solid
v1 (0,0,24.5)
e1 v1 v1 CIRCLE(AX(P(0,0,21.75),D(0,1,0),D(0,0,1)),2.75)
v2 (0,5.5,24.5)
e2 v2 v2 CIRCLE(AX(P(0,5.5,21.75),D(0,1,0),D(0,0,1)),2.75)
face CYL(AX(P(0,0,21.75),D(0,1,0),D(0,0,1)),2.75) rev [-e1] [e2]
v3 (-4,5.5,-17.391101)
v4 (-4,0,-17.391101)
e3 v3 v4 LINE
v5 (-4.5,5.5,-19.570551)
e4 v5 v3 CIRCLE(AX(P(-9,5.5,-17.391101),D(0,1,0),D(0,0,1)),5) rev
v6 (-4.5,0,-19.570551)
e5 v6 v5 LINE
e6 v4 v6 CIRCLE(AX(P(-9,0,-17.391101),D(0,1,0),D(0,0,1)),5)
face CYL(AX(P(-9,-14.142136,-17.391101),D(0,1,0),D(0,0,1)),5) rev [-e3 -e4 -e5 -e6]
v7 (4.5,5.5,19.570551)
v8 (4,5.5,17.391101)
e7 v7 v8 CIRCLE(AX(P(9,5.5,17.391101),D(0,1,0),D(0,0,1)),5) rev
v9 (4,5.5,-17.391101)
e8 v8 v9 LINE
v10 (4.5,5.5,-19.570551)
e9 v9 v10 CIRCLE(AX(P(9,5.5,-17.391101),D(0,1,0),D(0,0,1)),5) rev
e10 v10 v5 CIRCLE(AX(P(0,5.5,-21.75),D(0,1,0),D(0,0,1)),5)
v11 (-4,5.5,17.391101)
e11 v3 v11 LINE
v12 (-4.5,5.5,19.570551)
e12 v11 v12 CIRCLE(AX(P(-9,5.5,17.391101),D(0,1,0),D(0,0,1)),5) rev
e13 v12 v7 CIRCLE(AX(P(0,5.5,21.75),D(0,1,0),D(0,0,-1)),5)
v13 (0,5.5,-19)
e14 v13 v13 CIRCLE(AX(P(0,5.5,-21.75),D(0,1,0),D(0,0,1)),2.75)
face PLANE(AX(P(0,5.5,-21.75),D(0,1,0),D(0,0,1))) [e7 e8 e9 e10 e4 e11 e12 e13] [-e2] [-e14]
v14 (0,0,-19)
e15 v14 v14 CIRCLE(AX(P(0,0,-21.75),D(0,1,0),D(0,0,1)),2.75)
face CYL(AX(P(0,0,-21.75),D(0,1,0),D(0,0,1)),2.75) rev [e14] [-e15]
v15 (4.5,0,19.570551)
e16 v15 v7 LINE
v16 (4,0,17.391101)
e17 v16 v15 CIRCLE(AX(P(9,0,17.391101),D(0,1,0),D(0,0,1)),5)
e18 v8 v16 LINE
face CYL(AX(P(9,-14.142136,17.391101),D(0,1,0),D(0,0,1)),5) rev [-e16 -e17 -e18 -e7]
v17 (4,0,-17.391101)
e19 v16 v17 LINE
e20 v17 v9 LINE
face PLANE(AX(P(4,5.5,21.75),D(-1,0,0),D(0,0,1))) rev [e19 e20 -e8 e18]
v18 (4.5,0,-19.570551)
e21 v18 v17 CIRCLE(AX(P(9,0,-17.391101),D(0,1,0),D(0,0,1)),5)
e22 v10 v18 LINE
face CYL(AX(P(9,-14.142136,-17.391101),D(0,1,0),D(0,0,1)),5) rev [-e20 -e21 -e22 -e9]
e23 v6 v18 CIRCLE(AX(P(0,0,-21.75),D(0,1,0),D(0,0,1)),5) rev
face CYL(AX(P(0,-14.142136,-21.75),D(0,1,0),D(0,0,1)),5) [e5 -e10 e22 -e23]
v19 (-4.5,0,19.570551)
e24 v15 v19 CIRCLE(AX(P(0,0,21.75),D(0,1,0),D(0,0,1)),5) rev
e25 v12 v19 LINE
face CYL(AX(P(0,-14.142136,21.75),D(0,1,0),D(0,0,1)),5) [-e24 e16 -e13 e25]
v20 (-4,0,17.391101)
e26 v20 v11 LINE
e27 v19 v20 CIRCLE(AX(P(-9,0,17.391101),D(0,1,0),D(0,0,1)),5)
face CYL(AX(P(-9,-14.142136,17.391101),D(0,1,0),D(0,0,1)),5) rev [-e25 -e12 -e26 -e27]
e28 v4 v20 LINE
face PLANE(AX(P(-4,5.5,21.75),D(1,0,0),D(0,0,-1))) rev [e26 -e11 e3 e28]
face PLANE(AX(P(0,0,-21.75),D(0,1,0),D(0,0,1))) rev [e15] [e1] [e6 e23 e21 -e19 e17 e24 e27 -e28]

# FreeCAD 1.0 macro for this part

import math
import FreeCAD as App
import Part
import Sketcher
from FreeCAD import Vector
Q = App.Units.Quantity


def edges_at(feature, points):
    """Names of the edges that pass closest to the given points."""
    edges = feature.Shape.Edges
    near = lambda p: min(range(len(edges)), key=lambda i: edges[i].distToShape(Part.Vertex(*p))[0])
    return sorted({f"Edge{near(p) + 1}" for p in points})

doc = App.newDocument("Part")
body = doc.addObject("PartDesign::Body", "Body")

sketch1 = body.newObject("Sketcher::SketchObject", "Sketch")
sketch1.AttachmentSupport = (doc.getObject("XZ_Plane"), [""])
sketch1.MapMode = "FlatFace"
sketch1.addGeometry([
    Part.LineSegment(Vector(-4, -21.8, 0), Vector(-4, 21.8, 0)),
    Part.ArcOfCircle(Part.Circle(Vector(0, 21.8, 0), Vector(0, 0, 1), 4), math.radians(0), math.radians(180)),
    Part.LineSegment(Vector(4, 21.8, 0), Vector(4, -21.8, 0)),
    Part.ArcOfCircle(Part.Circle(Vector(0, -21.8, 0), Vector(0, 0, 1), 4), math.radians(180), math.radians(360)),
], False)
sketch1.addConstraint([
    Sketcher.Constraint("Tangent", 0, 2, 1, 2),
    Sketcher.Constraint("Tangent", 1, 1, 2, 1),
    Sketcher.Constraint("Tangent", 2, 2, 3, 2),
    Sketcher.Constraint("Tangent", 3, 1, 0, 1),
    Sketcher.Constraint("Vertical", 0),
    Sketcher.Constraint("Vertical", 2),
    Sketcher.Constraint("Symmetric", 1, 3, 3, 3, -1, 1),
    Sketcher.Constraint("Radius", 1, Q("4 mm")),
    Sketcher.Constraint("DistanceY", 0, 1, 0, 2, Q("43.5 mm")),
])
pad1 = body.newObject("PartDesign::Pad", "Pad")
pad1.Profile = sketch1
pad1.Length = 5.5
pad1.Reversed = True

sketch2 = body.newObject("Sketcher::SketchObject", "Sketch001")
sketch2.AttachmentSupport = (doc.getObject("XZ_Plane"), [""])
sketch2.MapMode = "FlatFace"
sketch2.AttachmentOffset = App.Placement(Vector(0, 0, -5.5), App.Rotation())
sketch2.addGeometry([
    Part.Circle(Vector(0, -21.8, 0), Vector(0, 0, 1), 2.8),
    Part.Circle(Vector(0, 21.8, 0), Vector(0, 0, 1), 2.8),
], False)
sketch2.addConstraint([
    Sketcher.Constraint("Equal", 0, 1),
    Sketcher.Constraint("Symmetric", 0, 3, 1, 3, -1, 1),
    Sketcher.Constraint("PointOnObject", 0, 3, -2),
    Sketcher.Constraint("Diameter", 0, Q("5.5 mm")),
    Sketcher.Constraint("DistanceY", 0, 3, 1, 3, Q("43.5 mm")),
])
pocket1 = body.newObject("PartDesign::Pocket", "Pocket")
pocket1.Profile = sketch2
pocket1.Type = "ThroughAll"
pocket1.Reversed = True

sketch3 = body.newObject("Sketcher::SketchObject", "Sketch002")
sketch3.AttachmentSupport = (doc.getObject("XZ_Plane"), [""])
sketch3.MapMode = "FlatFace"
sketch3.AttachmentOffset = App.Placement(Vector(0, 0, -5.5), App.Rotation())
sketch3.addGeometry([
    Part.Circle(Vector(0, -21.8, 0), Vector(0, 0, 1), 5),
    Part.Circle(Vector(0, -21.8, 0), Vector(0, 0, 1), 2.8),
    Part.Circle(Vector(0, 21.8, 0), Vector(0, 0, 1), 5),
    Part.Circle(Vector(0, 21.8, 0), Vector(0, 0, 1), 2.8),
], False)
sketch3.addConstraint([
    Sketcher.Constraint("Coincident", 1, 3, 0, 3),
    Sketcher.Constraint("Coincident", 3, 3, 2, 3),
    Sketcher.Constraint("Equal", 0, 2),
    Sketcher.Constraint("Equal", 1, 3),
    Sketcher.Constraint("Symmetric", 0, 3, 2, 3, -1, 1),
    Sketcher.Constraint("PointOnObject", 0, 3, -2),
    Sketcher.Constraint("Diameter", 0, Q("10 mm")),
    Sketcher.Constraint("Diameter", 1, Q("5.5 mm")),
    Sketcher.Constraint("DistanceY", 0, 3, 2, 3, Q("43.5 mm")),
])
pad2 = body.newObject("PartDesign::Pad", "Pad001")
pad2.Profile = sketch3
pad2.Length = 5.5
doc.recompute()

fillet = body.newObject("PartDesign::Fillet", "Fillet")
fillet.Base = (pad2, edges_at(pad2, [
    (-4, 2.75, -18.75),
    (4, 2.75, -18.75),
    (-4, 2.75, 18.75),
    (4, 2.75, 18.75),
]))
fillet.Radius = 5

doc.recompute()
